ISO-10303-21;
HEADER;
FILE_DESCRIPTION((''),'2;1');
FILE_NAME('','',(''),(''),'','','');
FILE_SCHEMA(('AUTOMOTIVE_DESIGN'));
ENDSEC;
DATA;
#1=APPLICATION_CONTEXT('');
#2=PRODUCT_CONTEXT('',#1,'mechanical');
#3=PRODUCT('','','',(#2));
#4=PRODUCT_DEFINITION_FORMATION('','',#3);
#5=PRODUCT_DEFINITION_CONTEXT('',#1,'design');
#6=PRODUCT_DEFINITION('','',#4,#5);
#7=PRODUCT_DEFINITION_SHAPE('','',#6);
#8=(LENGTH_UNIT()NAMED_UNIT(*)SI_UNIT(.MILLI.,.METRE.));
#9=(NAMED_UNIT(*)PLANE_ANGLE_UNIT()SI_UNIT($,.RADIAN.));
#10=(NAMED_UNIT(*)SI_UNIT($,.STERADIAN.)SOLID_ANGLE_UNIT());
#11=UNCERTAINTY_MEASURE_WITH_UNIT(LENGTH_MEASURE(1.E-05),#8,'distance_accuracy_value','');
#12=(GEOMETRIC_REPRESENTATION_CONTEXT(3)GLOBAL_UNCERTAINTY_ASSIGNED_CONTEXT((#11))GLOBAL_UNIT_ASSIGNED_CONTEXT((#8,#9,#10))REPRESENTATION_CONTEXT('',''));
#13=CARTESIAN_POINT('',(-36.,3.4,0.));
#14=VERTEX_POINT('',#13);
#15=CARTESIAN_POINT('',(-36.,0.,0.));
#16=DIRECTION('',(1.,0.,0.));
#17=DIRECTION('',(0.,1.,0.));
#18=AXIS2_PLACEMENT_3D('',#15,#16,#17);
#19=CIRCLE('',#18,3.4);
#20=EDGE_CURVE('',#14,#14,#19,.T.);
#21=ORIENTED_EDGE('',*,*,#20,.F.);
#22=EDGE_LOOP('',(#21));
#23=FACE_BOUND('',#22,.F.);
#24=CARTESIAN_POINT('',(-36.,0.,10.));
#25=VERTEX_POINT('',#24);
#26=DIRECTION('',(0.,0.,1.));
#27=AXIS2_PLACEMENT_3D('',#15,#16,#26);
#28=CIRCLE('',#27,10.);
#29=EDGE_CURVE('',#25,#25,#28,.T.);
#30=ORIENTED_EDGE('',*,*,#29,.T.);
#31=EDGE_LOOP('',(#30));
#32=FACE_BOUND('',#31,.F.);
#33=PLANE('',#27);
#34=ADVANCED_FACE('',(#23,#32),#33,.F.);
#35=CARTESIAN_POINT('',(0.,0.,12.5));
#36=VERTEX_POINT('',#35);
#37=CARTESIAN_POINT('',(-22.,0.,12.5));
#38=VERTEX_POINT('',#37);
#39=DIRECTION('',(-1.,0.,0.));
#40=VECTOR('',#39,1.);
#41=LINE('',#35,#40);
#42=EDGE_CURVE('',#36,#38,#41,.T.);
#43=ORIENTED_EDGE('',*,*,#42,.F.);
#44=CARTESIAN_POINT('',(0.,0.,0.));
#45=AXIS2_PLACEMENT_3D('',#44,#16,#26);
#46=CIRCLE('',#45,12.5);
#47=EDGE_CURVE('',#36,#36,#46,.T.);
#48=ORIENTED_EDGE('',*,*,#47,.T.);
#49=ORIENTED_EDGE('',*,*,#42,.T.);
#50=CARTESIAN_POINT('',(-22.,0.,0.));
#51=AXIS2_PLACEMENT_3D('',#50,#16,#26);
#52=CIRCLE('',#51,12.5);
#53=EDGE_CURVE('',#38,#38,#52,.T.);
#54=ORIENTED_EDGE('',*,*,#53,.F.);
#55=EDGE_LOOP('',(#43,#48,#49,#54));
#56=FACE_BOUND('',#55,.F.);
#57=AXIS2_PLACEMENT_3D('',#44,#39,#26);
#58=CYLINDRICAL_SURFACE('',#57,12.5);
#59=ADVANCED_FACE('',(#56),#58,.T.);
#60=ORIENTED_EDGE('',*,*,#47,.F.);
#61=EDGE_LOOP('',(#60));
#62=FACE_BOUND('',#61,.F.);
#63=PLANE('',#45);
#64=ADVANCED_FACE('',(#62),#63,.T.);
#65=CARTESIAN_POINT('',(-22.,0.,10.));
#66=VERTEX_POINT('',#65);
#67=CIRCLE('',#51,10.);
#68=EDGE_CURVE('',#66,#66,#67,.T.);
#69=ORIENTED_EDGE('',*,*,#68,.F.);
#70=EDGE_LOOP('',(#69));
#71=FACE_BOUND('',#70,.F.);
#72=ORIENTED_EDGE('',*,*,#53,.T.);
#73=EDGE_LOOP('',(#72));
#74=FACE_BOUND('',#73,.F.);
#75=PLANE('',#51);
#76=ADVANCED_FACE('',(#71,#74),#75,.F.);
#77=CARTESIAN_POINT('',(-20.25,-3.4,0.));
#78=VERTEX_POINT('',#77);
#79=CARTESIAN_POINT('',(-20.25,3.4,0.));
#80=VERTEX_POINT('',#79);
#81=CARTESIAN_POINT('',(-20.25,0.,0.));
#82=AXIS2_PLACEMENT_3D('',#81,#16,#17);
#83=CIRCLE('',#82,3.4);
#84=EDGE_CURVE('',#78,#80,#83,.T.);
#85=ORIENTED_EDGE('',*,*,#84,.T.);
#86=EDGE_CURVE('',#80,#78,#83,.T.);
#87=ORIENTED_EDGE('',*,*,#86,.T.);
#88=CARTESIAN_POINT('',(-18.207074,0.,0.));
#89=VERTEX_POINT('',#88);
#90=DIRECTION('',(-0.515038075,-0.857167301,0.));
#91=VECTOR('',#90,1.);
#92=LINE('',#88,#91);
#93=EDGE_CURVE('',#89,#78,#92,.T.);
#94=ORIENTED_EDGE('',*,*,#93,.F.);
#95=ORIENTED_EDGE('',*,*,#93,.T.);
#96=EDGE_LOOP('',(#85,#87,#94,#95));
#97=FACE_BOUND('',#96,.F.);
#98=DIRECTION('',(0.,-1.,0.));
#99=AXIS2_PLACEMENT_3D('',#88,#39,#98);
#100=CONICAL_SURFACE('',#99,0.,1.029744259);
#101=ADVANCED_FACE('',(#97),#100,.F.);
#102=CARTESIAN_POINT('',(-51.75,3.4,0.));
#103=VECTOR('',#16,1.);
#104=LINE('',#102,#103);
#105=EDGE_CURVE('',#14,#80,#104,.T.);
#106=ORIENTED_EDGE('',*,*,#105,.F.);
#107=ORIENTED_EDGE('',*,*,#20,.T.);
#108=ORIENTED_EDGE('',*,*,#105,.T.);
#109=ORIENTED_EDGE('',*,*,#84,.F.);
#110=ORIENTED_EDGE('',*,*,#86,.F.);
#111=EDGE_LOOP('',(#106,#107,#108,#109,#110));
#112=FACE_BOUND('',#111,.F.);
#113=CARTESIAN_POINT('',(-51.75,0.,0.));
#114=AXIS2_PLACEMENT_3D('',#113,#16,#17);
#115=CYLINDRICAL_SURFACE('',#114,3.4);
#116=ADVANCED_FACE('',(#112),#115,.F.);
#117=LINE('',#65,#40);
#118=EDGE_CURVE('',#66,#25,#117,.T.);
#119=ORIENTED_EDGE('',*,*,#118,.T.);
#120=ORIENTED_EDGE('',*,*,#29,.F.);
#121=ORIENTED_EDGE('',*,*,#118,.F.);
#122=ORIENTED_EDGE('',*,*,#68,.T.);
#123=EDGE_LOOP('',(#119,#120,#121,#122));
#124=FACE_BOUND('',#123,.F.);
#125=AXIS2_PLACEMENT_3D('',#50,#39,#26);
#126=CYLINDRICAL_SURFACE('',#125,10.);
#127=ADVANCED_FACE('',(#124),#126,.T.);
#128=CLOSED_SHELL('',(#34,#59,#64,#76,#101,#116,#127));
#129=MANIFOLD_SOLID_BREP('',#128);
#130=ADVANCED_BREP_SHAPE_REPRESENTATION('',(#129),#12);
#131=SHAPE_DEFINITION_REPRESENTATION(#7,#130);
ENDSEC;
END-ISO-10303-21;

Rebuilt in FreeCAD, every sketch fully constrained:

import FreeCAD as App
import Part
import Sketcher
Q = App.Units.Quantity

doc = App.newDocument("Part")
body = doc.addObject("PartDesign::Body", "Body")

# Sketch on XZ plane
sketch1 = body.newObject("Sketcher::SketchObject", "Sketch")
sketch1.AttachmentSupport = (doc.getObject("XZ_Plane"), [""])
sketch1.MapMode = "FlatFace"
sketch1.addGeometry([
    Part.LineSegment(App.Vector(-36, 10, 0), App.Vector(-36, 0, 0)),  # 0
    Part.LineSegment(App.Vector(-36, 0, 0), App.Vector(0, 0, 0)),  # 1
    Part.LineSegment(App.Vector(0, 0, 0), App.Vector(0, 12.5, 0)),  # 2
    Part.LineSegment(App.Vector(0, 12.5, 0), App.Vector(-22, 12.5, 0)),  # 3
    Part.LineSegment(App.Vector(-22, 12.5, 0), App.Vector(-22, 10, 0)),  # 4
    Part.LineSegment(App.Vector(-22, 10, 0), App.Vector(-36, 10, 0)),  # 5
], False)
sketch1.addConstraint([
    Sketcher.Constraint("Coincident", 0, 2, 1, 1),
    Sketcher.Constraint("Coincident", 1, 2, 2, 1),
    Sketcher.Constraint("Coincident", 2, 2, 3, 1),
    Sketcher.Constraint("Coincident", 3, 2, 4, 1),
    Sketcher.Constraint("Coincident", 4, 2, 5, 1),
    Sketcher.Constraint("Coincident", 5, 2, 0, 1),
    Sketcher.Constraint("Vertical", 0),
    Sketcher.Constraint("Horizontal", 1),
    Sketcher.Constraint("Vertical", 2),
    Sketcher.Constraint("Horizontal", 3),
    Sketcher.Constraint("Vertical", 4),
    Sketcher.Constraint("Horizontal", 5),
    Sketcher.Constraint("Coincident", 1, 2, -1, 1),
    Sketcher.Constraint("DistanceX", 1, 1, 1, 2, Q("36 mm")),
    Sketcher.Constraint("DistanceX", 3, 2, 3, 1, Q("22 mm")),
    Sketcher.Constraint("DistanceY", 0, 2, 0, 1, Q("10 mm")),
    Sketcher.Constraint("DistanceY", 2, 1, 2, 2, Q("12.5 mm")),
])
revolution = body.newObject("PartDesign::Revolution", "Revolution")
revolution.Profile = sketch1
revolution.ReferenceAxis = (sketch1, ["H_Axis"])
revolution.Angle = 360

# Sketch on YZ plane
sketch2 = body.newObject("Sketcher::SketchObject", "Sketch001")
sketch2.AttachmentSupport = (doc.getObject("YZ_Plane"), [""])
sketch2.MapMode = "FlatFace"
sketch2.AttachmentOffset = App.Placement(App.Vector(0, 0, -36), App.Rotation())
sketch2.addGeometry(Part.Circle(App.Vector(0, 0, 0), App.Vector(0, 0, 1), 3.4), False)
sketch2.addConstraint([
    Sketcher.Constraint("Coincident", 0, 3, -1, 1),
    Sketcher.Constraint("Diameter", 0, Q("6.8 mm")),
])
doc.recompute()
hole = body.newObject("PartDesign::Hole", "Hole")
hole.Profile = sketch2
hole.ThreadType = "None"
hole.Diameter = 6.8
hole.DepthType = "Dimension"
hole.Depth = 15.75
hole.DrillPoint = "Angled"
hole.DrillPointAngle = 118
hole.Reversed = True

doc.recompute()
